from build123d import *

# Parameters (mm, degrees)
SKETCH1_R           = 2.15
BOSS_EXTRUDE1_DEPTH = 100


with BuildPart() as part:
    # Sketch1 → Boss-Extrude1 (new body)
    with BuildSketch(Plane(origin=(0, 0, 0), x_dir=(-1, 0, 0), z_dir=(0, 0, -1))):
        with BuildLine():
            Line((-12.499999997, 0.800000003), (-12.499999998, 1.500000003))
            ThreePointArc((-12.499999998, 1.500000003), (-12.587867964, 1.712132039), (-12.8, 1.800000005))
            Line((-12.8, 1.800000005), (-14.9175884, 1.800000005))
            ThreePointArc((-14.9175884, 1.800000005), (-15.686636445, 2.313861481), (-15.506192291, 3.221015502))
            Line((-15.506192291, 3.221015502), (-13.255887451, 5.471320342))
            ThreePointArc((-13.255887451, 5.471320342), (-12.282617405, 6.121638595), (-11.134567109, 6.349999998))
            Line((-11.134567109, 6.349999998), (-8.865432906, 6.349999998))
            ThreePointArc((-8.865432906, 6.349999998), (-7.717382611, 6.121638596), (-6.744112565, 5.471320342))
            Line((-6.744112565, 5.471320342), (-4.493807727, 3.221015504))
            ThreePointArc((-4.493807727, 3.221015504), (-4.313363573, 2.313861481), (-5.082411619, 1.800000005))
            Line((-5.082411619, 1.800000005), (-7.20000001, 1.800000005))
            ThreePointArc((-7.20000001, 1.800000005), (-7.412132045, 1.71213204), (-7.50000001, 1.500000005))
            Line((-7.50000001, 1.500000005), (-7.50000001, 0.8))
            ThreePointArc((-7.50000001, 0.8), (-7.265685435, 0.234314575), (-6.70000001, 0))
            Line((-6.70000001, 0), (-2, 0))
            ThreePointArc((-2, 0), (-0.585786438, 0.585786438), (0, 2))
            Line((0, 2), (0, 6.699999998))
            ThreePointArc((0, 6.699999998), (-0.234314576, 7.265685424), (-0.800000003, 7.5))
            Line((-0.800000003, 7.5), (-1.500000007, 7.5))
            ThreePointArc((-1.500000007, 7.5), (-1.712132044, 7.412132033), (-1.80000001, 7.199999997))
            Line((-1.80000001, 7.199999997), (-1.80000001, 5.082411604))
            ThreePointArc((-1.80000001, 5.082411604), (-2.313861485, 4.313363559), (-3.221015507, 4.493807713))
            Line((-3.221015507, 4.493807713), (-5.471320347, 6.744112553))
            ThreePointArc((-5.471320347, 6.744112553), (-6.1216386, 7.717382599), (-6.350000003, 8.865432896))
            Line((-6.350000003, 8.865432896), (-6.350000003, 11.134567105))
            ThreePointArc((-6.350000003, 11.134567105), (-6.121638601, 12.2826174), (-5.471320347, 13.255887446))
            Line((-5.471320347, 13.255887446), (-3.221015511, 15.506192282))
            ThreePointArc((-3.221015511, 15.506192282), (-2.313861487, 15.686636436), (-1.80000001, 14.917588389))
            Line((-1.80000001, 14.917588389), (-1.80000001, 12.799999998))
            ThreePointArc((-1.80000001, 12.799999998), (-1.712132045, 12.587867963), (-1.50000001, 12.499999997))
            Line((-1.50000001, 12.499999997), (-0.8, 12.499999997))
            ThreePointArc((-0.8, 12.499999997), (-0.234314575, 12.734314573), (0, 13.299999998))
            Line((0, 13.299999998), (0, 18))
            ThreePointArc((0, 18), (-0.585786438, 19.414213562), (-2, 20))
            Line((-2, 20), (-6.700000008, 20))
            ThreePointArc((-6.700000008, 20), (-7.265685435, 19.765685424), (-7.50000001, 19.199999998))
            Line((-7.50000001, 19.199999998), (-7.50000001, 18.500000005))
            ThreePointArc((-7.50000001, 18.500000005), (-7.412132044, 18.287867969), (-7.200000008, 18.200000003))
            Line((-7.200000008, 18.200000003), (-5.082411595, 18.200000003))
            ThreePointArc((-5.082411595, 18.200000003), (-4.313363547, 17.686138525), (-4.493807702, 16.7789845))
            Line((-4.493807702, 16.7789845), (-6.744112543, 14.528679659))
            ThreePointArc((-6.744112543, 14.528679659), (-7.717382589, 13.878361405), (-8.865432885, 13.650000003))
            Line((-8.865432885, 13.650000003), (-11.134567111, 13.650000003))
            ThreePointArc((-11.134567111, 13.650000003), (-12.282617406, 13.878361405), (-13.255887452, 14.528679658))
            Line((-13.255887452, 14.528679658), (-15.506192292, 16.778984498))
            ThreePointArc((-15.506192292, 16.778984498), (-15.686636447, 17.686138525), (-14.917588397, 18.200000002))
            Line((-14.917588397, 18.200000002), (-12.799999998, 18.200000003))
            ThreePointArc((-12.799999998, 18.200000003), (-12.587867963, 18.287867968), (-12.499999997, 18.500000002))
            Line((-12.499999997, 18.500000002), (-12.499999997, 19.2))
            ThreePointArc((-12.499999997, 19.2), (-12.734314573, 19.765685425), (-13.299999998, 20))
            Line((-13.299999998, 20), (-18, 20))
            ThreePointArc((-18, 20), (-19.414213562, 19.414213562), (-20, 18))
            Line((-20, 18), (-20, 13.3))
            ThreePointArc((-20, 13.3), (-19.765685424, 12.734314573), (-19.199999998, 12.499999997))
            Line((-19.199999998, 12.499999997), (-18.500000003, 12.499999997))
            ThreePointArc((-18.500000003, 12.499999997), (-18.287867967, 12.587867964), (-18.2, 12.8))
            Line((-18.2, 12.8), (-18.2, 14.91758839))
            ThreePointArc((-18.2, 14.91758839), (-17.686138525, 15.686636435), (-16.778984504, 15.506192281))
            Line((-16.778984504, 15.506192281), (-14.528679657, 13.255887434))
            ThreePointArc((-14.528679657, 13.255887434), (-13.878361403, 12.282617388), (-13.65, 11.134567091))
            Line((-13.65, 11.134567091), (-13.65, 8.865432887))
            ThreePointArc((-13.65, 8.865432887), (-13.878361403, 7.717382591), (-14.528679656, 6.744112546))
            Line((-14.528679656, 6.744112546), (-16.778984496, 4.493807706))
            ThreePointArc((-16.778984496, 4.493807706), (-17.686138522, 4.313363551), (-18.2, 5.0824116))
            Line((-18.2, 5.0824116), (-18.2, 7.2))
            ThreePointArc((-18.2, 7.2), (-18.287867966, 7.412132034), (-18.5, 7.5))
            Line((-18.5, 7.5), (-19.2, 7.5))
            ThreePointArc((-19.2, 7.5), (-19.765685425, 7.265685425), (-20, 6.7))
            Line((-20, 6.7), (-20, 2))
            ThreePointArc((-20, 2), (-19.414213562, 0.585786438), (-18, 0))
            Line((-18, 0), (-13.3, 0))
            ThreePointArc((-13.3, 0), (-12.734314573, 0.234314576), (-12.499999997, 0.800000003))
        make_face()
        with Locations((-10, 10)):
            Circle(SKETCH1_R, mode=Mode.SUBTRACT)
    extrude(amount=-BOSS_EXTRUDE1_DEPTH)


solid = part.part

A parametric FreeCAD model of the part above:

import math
import FreeCAD as App
import Part
import Sketcher

V = App.Vector
Q = App.Units.Quantity

doc = App.newDocument("Part")
body = doc.addObject("PartDesign::Body", "Body")

# Sketch on XY plane
sketch1 = body.newObject("Sketcher::SketchObject", "Sketch")
sketch1.AttachmentSupport = (doc.getObject("XY_Plane"), [""])
sketch1.MapMode = "FlatFace"
sketch1.addGeometry(Part.LineSegment(V(12.5, 0.8, 0), V(12.5, 1.5, 0)), False)
sketch1.addGeometry(Part.ArcOfCircle(Part.Circle(V(12.8, 1.5, 0), V(0, 0, 1), 0.3), math.radians(90), math.radians(180)), False)
sketch1.addGeometry(Part.LineSegment(V(12.8, 1.8, 0), V(14.92, 1.8, 0)), False)
sketch1.addGeometry(Part.ArcOfCircle(Part.Circle(V(14.92, 2.63, 0), V(0, 0, 1), 0.83), math.radians(-90), math.radians(45)), False)
sketch1.addGeometry(Part.LineSegment(V(15.51, 3.22, 0), V(13.26, 5.47, 0)), False)
sketch1.addGeometry(Part.ArcOfCircle(Part.Circle(V(11.13, 3.35, 0), V(0, 0, 1), 3), math.radians(45), math.radians(90)), False)
sketch1.addGeometry(Part.LineSegment(V(11.13, 6.35, 0), V(8.87, 6.35, 0)), False)
sketch1.addGeometry(Part.ArcOfCircle(Part.Circle(V(8.87, 3.35, 0), V(0, 0, 1), 3), math.radians(90), math.radians(135)), False)
sketch1.addGeometry(Part.LineSegment(V(6.74, 5.47, 0), V(4.49, 3.22, 0)), False)
sketch1.addGeometry(Part.ArcOfCircle(Part.Circle(V(5.08, 2.63, 0), V(0, 0, 1), 0.83), math.radians(135), math.radians(270)), False)
sketch1.addGeometry(Part.LineSegment(V(5.08, 1.8, 0), V(7.2, 1.8, 0)), False)
sketch1.addGeometry(Part.ArcOfCircle(Part.Circle(V(7.2, 1.5, 0), V(0, 0, 1), 0.3), math.radians(0), math.radians(90)), False)
sketch1.addGeometry(Part.LineSegment(V(7.5, 1.5, 0), V(7.5, 0.8, 0)), False)
sketch1.addGeometry(Part.ArcOfCircle(Part.Circle(V(6.7, 0.8, 0), V(0, 0, 1), 0.8), math.radians(-90), math.radians(0)), False)
sketch1.addGeometry(Part.LineSegment(V(6.7, 0, 0), V(2, 0, 0)), False)
sketch1.addGeometry(Part.ArcOfCircle(Part.Circle(V(2, 2, 0), V(0, 0, 1), 2), math.radians(-180), math.radians(-90)), False)
sketch1.addGeometry(Part.LineSegment(V(0, 2, 0), V(0, 6.7, 0)), False)
sketch1.addGeometry(Part.ArcOfCircle(Part.Circle(V(0.8, 6.7, 0), V(0, 0, 1), 0.8), math.radians(90), math.radians(180)), False)
sketch1.addGeometry(Part.LineSegment(V(0.8, 7.5, 0), V(1.5, 7.5, 0)), False)
sketch1.addGeometry(Part.ArcOfCircle(Part.Circle(V(1.5, 7.2, 0), V(0, 0, 1), 0.3), math.radians(0), math.radians(90)), False)
sketch1.addGeometry(Part.LineSegment(V(1.8, 7.2, 0), V(1.8, 5.08, 0)), False)
sketch1.addGeometry(Part.ArcOfCircle(Part.Circle(V(2.63, 5.08, 0), V(0, 0, 1), 0.83), math.radians(180), math.radians(315)), False)
sketch1.addGeometry(Part.LineSegment(V(3.22, 4.49, 0), V(5.47, 6.74, 0)), False)
sketch1.addGeometry(Part.ArcOfCircle(Part.Circle(V(3.35, 8.87, 0), V(0, 0, 1), 3), math.radians(-45), math.radians(0)), False)
sketch1.addGeometry(Part.LineSegment(V(6.35, 8.87, 0), V(6.35, 11.13, 0)), False)
sketch1.addGeometry(Part.ArcOfCircle(Part.Circle(V(3.35, 11.13, 0), V(0, 0, 1), 3), math.radians(0), math.radians(45)), False)
sketch1.addGeometry(Part.LineSegment(V(5.47, 13.26, 0), V(3.22, 15.51, 0)), False)
sketch1.addGeometry(Part.ArcOfCircle(Part.Circle(V(2.63, 14.92, 0), V(0, 0, 1), 0.83), math.radians(45), math.radians(180)), False)
sketch1.addGeometry(Part.LineSegment(V(1.8, 14.92, 0), V(1.8, 12.8, 0)), False)
sketch1.addGeometry(Part.ArcOfCircle(Part.Circle(V(1.5, 12.8, 0), V(0, 0, 1), 0.3), math.radians(-90), math.radians(0)), False)
sketch1.addGeometry(Part.LineSegment(V(1.5, 12.5, 0), V(0.8, 12.5, 0)), False)
sketch1.addGeometry(Part.ArcOfCircle(Part.Circle(V(0.8, 13.3, 0), V(0, 0, 1), 0.8), math.radians(-180), math.radians(-90)), False)
sketch1.addGeometry(Part.LineSegment(V(0, 13.3, 0), V(0, 18, 0)), False)
sketch1.addGeometry(Part.ArcOfCircle(Part.Circle(V(2, 18, 0), V(0, 0, 1), 2), math.radians(90), math.radians(180)), False)
sketch1.addGeometry(Part.LineSegment(V(2, 20, 0), V(6.7, 20, 0)), False)
sketch1.addGeometry(Part.ArcOfCircle(Part.Circle(V(6.7, 19.2, 0), V(0, 0, 1), 0.8), math.radians(0), math.radians(90)), False)
sketch1.addGeometry(Part.LineSegment(V(7.5, 19.2, 0), V(7.5, 18.5, 0)), False)
sketch1.addGeometry(Part.ArcOfCircle(Part.Circle(V(7.2, 18.5, 0), V(0, 0, 1), 0.3), math.radians(-90), math.radians(0)), False)
sketch1.addGeometry(Part.LineSegment(V(7.2, 18.2, 0), V(5.08, 18.2, 0)), False)
sketch1.addGeometry(Part.ArcOfCircle(Part.Circle(V(5.08, 17.37, 0), V(0, 0, 1), 0.83), math.radians(90), math.radians(225)), False)
sketch1.addGeometry(Part.LineSegment(V(4.49, 16.78, 0), V(6.74, 14.53, 0)), False)
sketch1.addGeometry(Part.ArcOfCircle(Part.Circle(V(8.87, 16.65, 0), V(0, 0, 1), 3), math.radians(-135), math.radians(-90)), False)
sketch1.addGeometry(Part.LineSegment(V(8.87, 13.65, 0), V(11.13, 13.65, 0)), False)
sketch1.addGeometry(Part.ArcOfCircle(Part.Circle(V(11.13, 16.65, 0), V(0, 0, 1), 3), math.radians(-90), math.radians(-45)), False)
sketch1.addGeometry(Part.LineSegment(V(13.26, 14.53, 0), V(15.51, 16.78, 0)), False)
sketch1.addGeometry(Part.ArcOfCircle(Part.Circle(V(14.92, 17.37, 0), V(0, 0, 1), 0.83), math.radians(-45), math.radians(90)), False)
sketch1.addGeometry(Part.LineSegment(V(14.92, 18.2, 0), V(12.8, 18.2, 0)), False)
sketch1.addGeometry(Part.ArcOfCircle(Part.Circle(V(12.8, 18.5, 0), V(0, 0, 1), 0.3), math.radians(-180), math.radians(-90)), False)
sketch1.addGeometry(Part.LineSegment(V(12.5, 18.5, 0), V(12.5, 19.2, 0)), False)
sketch1.addGeometry(Part.ArcOfCircle(Part.Circle(V(13.3, 19.2, 0), V(0, 0, 1), 0.8), math.radians(90), math.radians(180)), False)
sketch1.addGeometry(Part.LineSegment(V(13.3, 20, 0), V(18, 20, 0)), False)
sketch1.addGeometry(Part.ArcOfCircle(Part.Circle(V(18, 18, 0), V(0, 0, 1), 2), math.radians(0), math.radians(90)), False)
sketch1.addGeometry(Part.LineSegment(V(20, 18, 0), V(20, 13.3, 0)), False)
sketch1.addGeometry(Part.ArcOfCircle(Part.Circle(V(19.2, 13.3, 0), V(0, 0, 1), 0.8), math.radians(-90), math.radians(0)), False)
sketch1.addGeometry(Part.LineSegment(V(19.2, 12.5, 0), V(18.5, 12.5, 0)), False)
sketch1.addGeometry(Part.ArcOfCircle(Part.Circle(V(18.5, 12.8, 0), V(0, 0, 1), 0.3), math.radians(-180), math.radians(-90)), False)
sketch1.addGeometry(Part.LineSegment(V(18.2, 12.8, 0), V(18.2, 14.92, 0)), False)
sketch1.addGeometry(Part.ArcOfCircle(Part.Circle(V(17.37, 14.92, 0), V(0, 0, 1), 0.83), math.radians(0), math.radians(135)), False)
sketch1.addGeometry(Part.LineSegment(V(16.78, 15.51, 0), V(14.53, 13.26, 0)), False)
sketch1.addGeometry(Part.ArcOfCircle(Part.Circle(V(16.65, 11.13, 0), V(0, 0, 1), 3), math.radians(135), math.radians(180)), False)
sketch1.addGeometry(Part.LineSegment(V(13.65, 11.13, 0), V(13.65, 8.87, 0)), False)
sketch1.addGeometry(Part.ArcOfCircle(Part.Circle(V(16.65, 8.87, 0), V(0, 0, 1), 3), math.radians(-180), math.radians(-135)), False)
sketch1.addGeometry(Part.LineSegment(V(14.53, 6.74, 0), V(16.78, 4.49, 0)), False)
sketch1.addGeometry(Part.ArcOfCircle(Part.Circle(V(17.37, 5.08, 0), V(0, 0, 1), 0.83), math.radians(-135), math.radians(0)), False)
sketch1.addGeometry(Part.LineSegment(V(18.2, 5.08, 0), V(18.2, 7.2, 0)), False)
sketch1.addGeometry(Part.ArcOfCircle(Part.Circle(V(18.5, 7.2, 0), V(0, 0, 1), 0.3), math.radians(90), math.radians(180)), False)
sketch1.addGeometry(Part.LineSegment(V(18.5, 7.5, 0), V(19.2, 7.5, 0)), False)
sketch1.addGeometry(Part.ArcOfCircle(Part.Circle(V(19.2, 6.7, 0), V(0, 0, 1), 0.8), math.radians(0), math.radians(90)), False)
sketch1.addGeometry(Part.LineSegment(V(20, 6.7, 0), V(20, 2, 0)), False)
sketch1.addGeometry(Part.ArcOfCircle(Part.Circle(V(18, 2, 0), V(0, 0, 1), 2), math.radians(-90), math.radians(0)), False)
sketch1.addGeometry(Part.LineSegment(V(18, 0, 0), V(13.3, 0, 0)), False)
sketch1.addGeometry(Part.ArcOfCircle(Part.Circle(V(13.3, 0.8, 0), V(0, 0, 1), 0.8), math.radians(180), math.radians(270)), False)
sketch1.addGeometry(Part.Circle(V(10, 10, 0), V(0, 0, 1), 2.15), False)
sketch1.addConstraint(Sketcher.Constraint("Tangent", 0, 2, 1, 2))
sketch1.addConstraint(Sketcher.Constraint("Tangent", 1, 1, 2, 1))
sketch1.addConstraint(Sketcher.Constraint("Tangent", 2, 2, 3, 1))
sketch1.addConstraint(Sketcher.Constraint("Tangent", 3, 2, 4, 1))
sketch1.addConstraint(Sketcher.Constraint("Tangent", 4, 2, 5, 1))
sketch1.addConstraint(Sketcher.Constraint("Tangent", 5, 2, 6, 1))
sketch1.addConstraint(Sketcher.Constraint("Tangent", 6, 2, 7, 1))
sketch1.addConstraint(Sketcher.Constraint("Tangent", 7, 2, 8, 1))
sketch1.addConstraint(Sketcher.Constraint("Tangent", 8, 2, 9, 1))
sketch1.addConstraint(Sketcher.Constraint("Tangent", 9, 2, 10, 1))
sketch1.addConstraint(Sketcher.Constraint("Tangent", 10, 2, 11, 2))
sketch1.addConstraint(Sketcher.Constraint("Tangent", 11, 1, 12, 1))
sketch1.addConstraint(Sketcher.Constraint("Tangent", 12, 2, 13, 2))
sketch1.addConstraint(Sketcher.Constraint("Tangent", 13, 1, 14, 1))
sketch1.addConstraint(Sketcher.Constraint("Tangent", 14, 2, 15, 2))
sketch1.addConstraint(Sketcher.Constraint("Tangent", 15, 1, 16, 1))
sketch1.addConstraint(Sketcher.Constraint("Tangent", 16, 2, 17, 2))
sketch1.addConstraint(Sketcher.Constraint("Tangent", 17, 1, 18, 1))
sketch1.addConstraint(Sketcher.Constraint("Tangent", 18, 2, 19, 2))
sketch1.addConstraint(Sketcher.Constraint("Tangent", 19, 1, 20, 1))
sketch1.addConstraint(Sketcher.Constraint("Tangent", 20, 2, 21, 1))
sketch1.addConstraint(Sketcher.Constraint("Tangent", 21, 2, 22, 1))
sketch1.addConstraint(Sketcher.Constraint("Tangent", 22, 2, 23, 1))
sketch1.addConstraint(Sketcher.Constraint("Tangent", 23, 2, 24, 1))
sketch1.addConstraint(Sketcher.Constraint("Tangent", 24, 2, 25, 1))
sketch1.addConstraint(Sketcher.Constraint("Tangent", 25, 2, 26, 1))
sketch1.addConstraint(Sketcher.Constraint("Tangent", 26, 2, 27, 1))
sketch1.addConstraint(Sketcher.Constraint("Tangent", 27, 2, 28, 1))
sketch1.addConstraint(Sketcher.Constraint("Tangent", 28, 2, 29, 2))
sketch1.addConstraint(Sketcher.Constraint("Tangent", 29, 1, 30, 1))
sketch1.addConstraint(Sketcher.Constraint("Tangent", 30, 2, 31, 2))
sketch1.addConstraint(Sketcher.Constraint("Tangent", 31, 1, 32, 1))
sketch1.addConstraint(Sketcher.Constraint("Tangent", 32, 2, 33, 2))
sketch1.addConstraint(Sketcher.Constraint("Tangent", 33, 1, 34, 1))
sketch1.addConstraint(Sketcher.Constraint("Tangent", 34, 2, 35, 2))
sketch1.addConstraint(Sketcher.Constraint("Tangent", 35, 1, 36, 1))
sketch1.addConstraint(Sketcher.Constraint("Tangent", 36, 2, 37, 2))
sketch1.addConstraint(Sketcher.Constraint("Tangent", 37, 1, 38, 1))
sketch1.addConstraint(Sketcher.Constraint("Tangent", 38, 2, 39, 1))
sketch1.addConstraint(Sketcher.Constraint("Tangent", 39, 2, 40, 1))
sketch1.addConstraint(Sketcher.Constraint("Tangent", 40, 2, 41, 1))
sketch1.addConstraint(Sketcher.Constraint("Tangent", 41, 2, 42, 1))
sketch1.addConstraint(Sketcher.Constraint("Tangent", 42, 2, 43, 1))
sketch1.addConstraint(Sketcher.Constraint("Tangent", 43, 2, 44, 1))
sketch1.addConstraint(Sketcher.Constraint("Tangent", 44, 2, 45, 1))
sketch1.addConstraint(Sketcher.Constraint("Tangent", 45, 2, 46, 1))
sketch1.addConstraint(Sketcher.Constraint("Tangent", 46, 2, 47, 2))
sketch1.addConstraint(Sketcher.Constraint("Tangent", 47, 1, 48, 1))
sketch1.addConstraint(Sketcher.Constraint("Tangent", 48, 2, 49, 2))
sketch1.addConstraint(Sketcher.Constraint("Tangent", 49, 1, 50, 1))
sketch1.addConstraint(Sketcher.Constraint("Tangent", 50, 2, 51, 2))
sketch1.addConstraint(Sketcher.Constraint("Tangent", 51, 1, 52, 1))
sketch1.addConstraint(Sketcher.Constraint("Tangent", 52, 2, 53, 2))
sketch1.addConstraint(Sketcher.Constraint("Tangent", 53, 1, 54, 1))
sketch1.addConstraint(Sketcher.Constraint("Tangent", 54, 2, 55, 2))
sketch1.addConstraint(Sketcher.Constraint("Tangent", 55, 1, 56, 1))
sketch1.addConstraint(Sketcher.Constraint("Tangent", 56, 2, 57, 1))
sketch1.addConstraint(Sketcher.Constraint("Tangent", 57, 2, 58, 1))
sketch1.addConstraint(Sketcher.Constraint("Tangent", 58, 2, 59, 1))
sketch1.addConstraint(Sketcher.Constraint("Tangent", 59, 2, 60, 1))
sketch1.addConstraint(Sketcher.Constraint("Tangent", 60, 2, 61, 1))
sketch1.addConstraint(Sketcher.Constraint("Tangent", 61, 2, 62, 1))
sketch1.addConstraint(Sketcher.Constraint("Tangent", 62, 2, 63, 1))
sketch1.addConstraint(Sketcher.Constraint("Tangent", 63, 2, 64, 1))
sketch1.addConstraint(Sketcher.Constraint("Tangent", 64, 2, 65, 2))
sketch1.addConstraint(Sketcher.Constraint("Tangent", 65, 1, 66, 1))
sketch1.addConstraint(Sketcher.Constraint("Tangent", 66, 2, 67, 2))
sketch1.addConstraint(Sketcher.Constraint("Tangent", 67, 1, 68, 1))
sketch1.addConstraint(Sketcher.Constraint("Tangent", 68, 2, 69, 2))
sketch1.addConstraint(Sketcher.Constraint("Tangent", 69, 1, 70, 1))
sketch1.addConstraint(Sketcher.Constraint("Tangent", 70, 2, 71, 2))
sketch1.addConstraint(Sketcher.Constraint("Tangent", 71, 1, 0, 1))
sketch1.addConstraint(Sketcher.Constraint("Vertical", 0))
sketch1.addConstraint(Sketcher.Constraint("Horizontal", 2))
sketch1.addConstraint(Sketcher.Constraint("Horizontal", 6))
sketch1.addConstraint(Sketcher.Constraint("Horizontal", 10))
sketch1.addConstraint(Sketcher.Constraint("Vertical", 12))
sketch1.addConstraint(Sketcher.Constraint("Horizontal", 14))
sketch1.addConstraint(Sketcher.Constraint("Vertical", 16))
sketch1.addConstraint(Sketcher.Constraint("Horizontal", 18))
sketch1.addConstraint(Sketcher.Constraint("Vertical", 20))
sketch1.addConstraint(Sketcher.Constraint("Vertical", 24))
sketch1.addConstraint(Sketcher.Constraint("Vertical", 28))
sketch1.addConstraint(Sketcher.Constraint("Horizontal", 30))
sketch1.addConstraint(Sketcher.Constraint("Vertical", 32))
sketch1.addConstraint(Sketcher.Constraint("Horizontal", 34))
sketch1.addConstraint(Sketcher.Constraint("Vertical", 36))
sketch1.addConstraint(Sketcher.Constraint("Horizontal", 38))
sketch1.addConstraint(Sketcher.Constraint("Horizontal", 42))
sketch1.addConstraint(Sketcher.Constraint("Horizontal", 46))
sketch1.addConstraint(Sketcher.Constraint("Vertical", 48))
sketch1.addConstraint(Sketcher.Constraint("Horizontal", 50))
sketch1.addConstraint(Sketcher.Constraint("Vertical", 52))
sketch1.addConstraint(Sketcher.Constraint("Horizontal", 54))
sketch1.addConstraint(Sketcher.Constraint("Vertical", 56))
sketch1.addConstraint(Sketcher.Constraint("Vertical", 60))
sketch1.addConstraint(Sketcher.Constraint("Vertical", 64))
sketch1.addConstraint(Sketcher.Constraint("Horizontal", 66))
sketch1.addConstraint(Sketcher.Constraint("Vertical", 68))
sketch1.addConstraint(Sketcher.Constraint("Horizontal", 70))
sketch1.addConstraint(Sketcher.Constraint("Equal", 5, 7))
sketch1.addConstraint(Sketcher.Constraint("Equal", 3, 9))
sketch1.addConstraint(Sketcher.Constraint("Equal", 1, 11))
sketch1.addConstraint(Sketcher.Constraint("Equal", 13, 17))
sketch1.addConstraint(Sketcher.Constraint("Equal", 11, 19))
sketch1.addConstraint(Sketcher.Constraint("Equal", 9, 21))
sketch1.addConstraint(Sketcher.Constraint("Equal", 7, 23))
sketch1.addConstraint(Sketcher.Constraint("Equal", 23, 25))
sketch1.addConstraint(Sketcher.Constraint("Equal", 21, 27))
sketch1.addConstraint(Sketcher.Constraint("Equal", 19, 29))
sketch1.addConstraint(Sketcher.Constraint("Equal", 17, 31))
sketch1.addConstraint(Sketcher.Constraint("Equal", 15, 33))
sketch1.addConstraint(Sketcher.Constraint("Equal", 31, 35))
sketch1.addConstraint(Sketcher.Constraint("Equal", 29, 37))
sketch1.addConstraint(Sketcher.Constraint("Equal", 27, 39))
sketch1.addConstraint(Sketcher.Constraint("Equal", 25, 41))
sketch1.addConstraint(Sketcher.Constraint("Equal", 41, 43))
sketch1.addConstraint(Sketcher.Constraint("Equal", 39, 45))
sketch1.addConstraint(Sketcher.Constraint("Equal", 37, 47))
sketch1.addConstraint(Sketcher.Constraint("Equal", 35, 49))
sketch1.addConstraint(Sketcher.Constraint("Equal", 33, 51))
sketch1.addConstraint(Sketcher.Constraint("Equal", 49, 53))
sketch1.addConstraint(Sketcher.Constraint("Equal", 47, 55))
sketch1.addConstraint(Sketcher.Constraint("Equal", 45, 57))
sketch1.addConstraint(Sketcher.Constraint("Equal", 43, 59))
sketch1.addConstraint(Sketcher.Constraint("Equal", 59, 61))
sketch1.addConstraint(Sketcher.Constraint("Equal", 57, 63))
sketch1.addConstraint(Sketcher.Constraint("Equal", 55, 65))
sketch1.addConstraint(Sketcher.Constraint("Equal", 53, 67))
sketch1.addConstraint(Sketcher.Constraint("Equal", 51, 69))
sketch1.addConstraint(Sketcher.Constraint("Equal", 67, 71))
sketch1.addConstraint(Sketcher.Constraint("PointOnObject", 13, 1, -1))
sketch1.addConstraint(Sketcher.Constraint("PointOnObject", 15, 1, -2))
sketch1.addConstraint(Sketcher.Constraint("PointOnObject", 31, 1, -2))
sketch1.addConstraint(Sketcher.Constraint("PointOnObject", 69, 1, -1))
sketch1.addConstraint(Sketcher.Constraint("Perpendicular", 4, 8))
sketch1.addConstraint(Sketcher.Constraint("Parallel", 8, 22))
sketch1.addConstraint(Sketcher.Constraint("Perpendicular", 22, 26))
sketch1.addConstraint(Sketcher.Constraint("Parallel", 26, 40))
sketch1.addConstraint(Sketcher.Constraint("Perpendicular", 40, 44))
sketch1.addConstraint(Sketcher.Constraint("Parallel", 44, 58))
sketch1.addConstraint(Sketcher.Constraint("Perpendicular", 58, 62))
sketch1.addConstraint(Sketcher.Constraint("Horizontal", 3, 3, 9, 3))
sketch1.addConstraint(Sketcher.Constraint("Horizontal", 39, 3, 45, 3))
sketch1.addConstraint(Sketcher.Constraint("Horizontal", 35, 3, 49, 3))
sketch1.addConstraint(Sketcher.Constraint("Horizontal", 31, 3, 53, 3))
sketch1.addConstraint(Sketcher.Constraint("Horizontal", 27, 3, 57, 3))
sketch1.addConstraint(Sketcher.Constraint("Horizontal", 25, 3, 59, 3))
sketch1.addConstraint(Sketcher.Constraint("Horizontal", 23, 3, 61, 3))
sketch1.addConstraint(Sketcher.Constraint("Horizontal", 21, 3, 63, 3))
sketch1.addConstraint(Sketcher.Constraint("Horizontal", 19, 3, 65, 3))
sketch1.addConstraint(Sketcher.Constraint("Horizontal", 4, 2, 7, 2))
sketch1.addConstraint(Sketcher.Constraint("Vertical", 21, 3, 27, 3))
sketch1.addConstraint(Sketcher.Constraint("Vertical", 13, 3, 35, 3))
sketch1.addConstraint(Sketcher.Constraint("Vertical", 9, 3, 39, 3))
sketch1.addConstraint(Sketcher.Constraint("Vertical", 7, 3, 41, 3))
sketch1.addConstraint(Sketcher.Constraint("Vertical", 5, 3, 43, 3))
sketch1.addConstraint(Sketcher.Constraint("Vertical", 1, 3, 47, 3))
sketch1.addConstraint(Sketcher.Constraint("Vertical", 53, 3, 67, 3))
sketch1.addConstraint(Sketcher.Constraint("Equal", 2, 10))
sketch1.addConstraint(Sketcher.Constraint("Equal", 34, 50))
sketch1.addConstraint(Sketcher.Constraint("Equal", 30, 54))
sketch1.addConstraint(Sketcher.Constraint("Equal", 66, 0))
sketch1.addConstraint(Sketcher.Constraint("Equal", 70, 16))
sketch1.addConstraint(Sketcher.Constraint("Equal", 46, 20))
sketch1.addConstraint(Sketcher.Constraint("Equal", 42, 24))
sketch1.addConstraint(Sketcher.Constraint("Equal", 20, 28))
sketch1.addConstraint(Sketcher.Constraint("Equal", 16, 32))
sketch1.addConstraint(Sketcher.Constraint("Equal", 12, 36))
sketch1.addConstraint(Sketcher.Constraint("Equal", 8, 22))
sketch1.addConstraint(Sketcher.Constraint("Radius", 5, Q("3 mm")))
sketch1.addConstraint(Sketcher.Constraint("Radius", 15, Q("2 mm")))
sketch1.addConstraint(Sketcher.Constraint("Diameter", 72, Q("4.3 mm")))
sketch1.addConstraint(Sketcher.Constraint("Radius", 1, Q("0.3 mm")))
sketch1.addConstraint(Sketcher.Constraint("Radius", 13, Q("0.8 mm")))
sketch1.addConstraint(Sketcher.Constraint("DistanceX", 14, 2, 14, 1, Q("4.7 mm")))
sketch1.addConstraint(Sketcher.Constraint("DistanceX", 18, 1, 18, 2, Q("0.7 mm")))
sketch1.addConstraint(Sketcher.Constraint("DistanceY", -1, 1, 33, 3, Q("18 mm")))
sketch1.addConstraint(Sketcher.Constraint("DistanceX", -1, 1, 72, 3, Q("10 mm")))
sketch1.addConstraint(Sketcher.Constraint("DistanceY", -1, 1, 72, 3, Q("10 mm")))
sketch1.addConstraint(Sketcher.Constraint("DistanceY", -1, 1, 5, 3, Q("3.35 mm")))
sketch1.addConstraint(Sketcher.Constraint("Radius", 3, Q("0.832412 mm")))
sketch1.addConstraint(Sketcher.Constraint("DistanceX", 2, 1, 2, 2, Q("2.117588 mm")))
pad1 = body.newObject("PartDesign::Pad", "Pad")
pad1.Profile = sketch1
pad1.Length = 100

doc.recompute()
